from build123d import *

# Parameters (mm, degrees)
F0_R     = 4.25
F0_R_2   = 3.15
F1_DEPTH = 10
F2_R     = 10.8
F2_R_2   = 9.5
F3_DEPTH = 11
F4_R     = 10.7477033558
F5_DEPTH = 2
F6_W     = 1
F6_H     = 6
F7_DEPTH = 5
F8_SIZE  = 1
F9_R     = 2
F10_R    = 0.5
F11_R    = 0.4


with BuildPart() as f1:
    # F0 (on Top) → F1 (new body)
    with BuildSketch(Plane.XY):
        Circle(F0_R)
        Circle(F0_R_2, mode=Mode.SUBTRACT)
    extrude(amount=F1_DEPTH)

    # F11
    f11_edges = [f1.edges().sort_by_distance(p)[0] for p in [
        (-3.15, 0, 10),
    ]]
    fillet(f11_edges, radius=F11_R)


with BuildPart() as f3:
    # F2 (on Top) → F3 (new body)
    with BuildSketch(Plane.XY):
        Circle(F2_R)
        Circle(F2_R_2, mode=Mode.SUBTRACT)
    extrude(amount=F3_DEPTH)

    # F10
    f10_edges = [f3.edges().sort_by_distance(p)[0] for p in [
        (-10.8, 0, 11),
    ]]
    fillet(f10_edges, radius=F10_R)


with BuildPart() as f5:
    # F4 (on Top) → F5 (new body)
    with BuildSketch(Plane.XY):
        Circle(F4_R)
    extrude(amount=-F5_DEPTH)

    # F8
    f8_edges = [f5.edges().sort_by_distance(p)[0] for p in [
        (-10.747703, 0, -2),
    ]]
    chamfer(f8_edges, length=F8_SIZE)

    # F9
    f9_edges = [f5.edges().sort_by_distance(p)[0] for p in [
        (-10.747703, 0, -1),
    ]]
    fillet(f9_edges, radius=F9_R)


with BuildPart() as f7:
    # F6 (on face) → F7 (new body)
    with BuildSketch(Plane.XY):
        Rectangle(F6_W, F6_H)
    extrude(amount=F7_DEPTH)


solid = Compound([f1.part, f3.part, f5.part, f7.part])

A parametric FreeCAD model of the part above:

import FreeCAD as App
import Part
import Sketcher

V = App.Vector
Q = App.Units.Quantity


def edges_at(feature, points):
    """Names of the edges that pass closest to the given points."""
    edges = feature.Shape.Edges
    near = lambda p: min(range(len(edges)), key=lambda i: edges[i].distToShape(Part.Vertex(*p))[0])
    return sorted({f"Edge{near(p) + 1}" for p in points})

doc = App.newDocument("Part")
body = doc.addObject("PartDesign::Body", "Body")

# Sketch on XY plane
sketch1 = body.newObject("Sketcher::SketchObject", "Sketch")
sketch1.AttachmentSupport = (doc.getObject("XY_Plane"), [""])
sketch1.MapMode = "FlatFace"
sketch1.addGeometry([
    Part.Circle(V(0, 0, 0), V(0, 0, 1), 4.2),
    Part.Circle(V(0, 0, 0), V(0, 0, 1), 3.1),
], False)
sketch1.addConstraint([
    Sketcher.Constraint("Coincident", 0, 3, -1, 1),
    Sketcher.Constraint("Coincident", 1, 3, -1, 1),
    Sketcher.Constraint("Diameter", 0, Q("8.5 mm")),
    Sketcher.Constraint("Diameter", 1, Q("6.3 mm")),
])
pad1 = body.newObject("PartDesign::Pad", "Pad")
pad1.Profile = sketch1
pad1.Length = 10
doc.recompute()

fillet = body.newObject("PartDesign::Fillet", "Fillet")
fillet.Base = (pad1, edges_at(pad1, [(-3.15, 0, 10)]))
fillet.Radius = 0.4
body2 = doc.addObject("PartDesign::Body", "Body001")

# Sketch on XY plane
sketch2 = body2.newObject("Sketcher::SketchObject", "Sketch001")
sketch2.AttachmentSupport = (doc.getObject("XY_Plane001"), [""])
sketch2.MapMode = "FlatFace"
sketch2.addGeometry([
    Part.Circle(V(0, 0, 0), V(0, 0, 1), 11),
    Part.Circle(V(0, 0, 0), V(0, 0, 1), 10),
], False)
sketch2.addConstraint([
    Sketcher.Constraint("Coincident", 0, 3, -1, 1),
    Sketcher.Constraint("Coincident", 1, 3, -1, 1),
    Sketcher.Constraint("Diameter", 1, Q("19 mm")),
    Sketcher.Constraint("Diameter", 0, Q("21.6 mm")),
])
pad2 = body2.newObject("PartDesign::Pad", "Pad001")
pad2.Profile = sketch2
pad2.Length = 11
doc.recompute()

fillet2 = body2.newObject("PartDesign::Fillet", "Fillet001")
fillet2.Base = (pad2, edges_at(pad2, [(-10.8, 0, 11)]))
fillet2.Radius = 0.5
body3 = doc.addObject("PartDesign::Body", "Body002")

# Sketch on XY plane
sketch3 = body3.newObject("Sketcher::SketchObject", "Sketch002")
sketch3.AttachmentSupport = (doc.getObject("XY_Plane002"), [""])
sketch3.MapMode = "FlatFace"
sketch3.addGeometry(Part.Circle(V(0, 0, 0), V(0, 0, 1), 11), False)
sketch3.addConstraint([
    Sketcher.Constraint("Coincident", 0, 3, -1, 1),
    Sketcher.Constraint("Diameter", 0, Q("21.495407 mm")),
])
pad3 = body3.newObject("PartDesign::Pad", "Pad002")
pad3.Profile = sketch3
pad3.Length = 2
pad3.Reversed = True
doc.recompute()

chamfer = body3.newObject("PartDesign::Chamfer", "Chamfer")
chamfer.Base = (pad3, edges_at(pad3, [(-10.748, 0, -2)]))
chamfer.Size = 1
doc.recompute()

fillet3 = body3.newObject("PartDesign::Fillet", "Fillet002")
fillet3.Base = (chamfer, edges_at(chamfer, [(-10.748, 0, -1)]))
fillet3.Radius = 2
body4 = doc.addObject("PartDesign::Body", "Body003")

# Sketch on XY plane
sketch4 = body4.newObject("Sketcher::SketchObject", "Sketch003")
sketch4.AttachmentSupport = (doc.getObject("XY_Plane003"), [""])
sketch4.MapMode = "FlatFace"
sketch4.addGeometry([
    Part.LineSegment(V(-0.5, 3, 0), V(-0.5, -3, 0)),
    Part.LineSegment(V(-0.5, -3, 0), V(0.5, -3, 0)),
    Part.LineSegment(V(0.5, -3, 0), V(0.5, 3, 0)),
    Part.LineSegment(V(0.5, 3, 0), V(-0.5, 3, 0)),
], False)
sketch4.addConstraint([
    Sketcher.Constraint("Coincident", 0, 2, 1, 1),
    Sketcher.Constraint("Coincident", 1, 2, 2, 1),
    Sketcher.Constraint("Coincident", 2, 2, 3, 1),
    Sketcher.Constraint("Coincident", 3, 2, 0, 1),
    Sketcher.Constraint("Vertical", 0),
    Sketcher.Constraint("Horizontal", 1),
    Sketcher.Constraint("Vertical", 2),
    Sketcher.Constraint("Horizontal", 3),
    Sketcher.Constraint("Symmetric", 0, 2, 2, 2, -1, 1),
    Sketcher.Constraint("DistanceX", 1, 1, 1, 2, Q("1 mm")),
    Sketcher.Constraint("DistanceY", 0, 2, 0, 1, Q("6 mm")),
])
pad4 = body4.newObject("PartDesign::Pad", "Pad003")
pad4.Profile = sketch4
pad4.Length = 5

doc.recompute()
